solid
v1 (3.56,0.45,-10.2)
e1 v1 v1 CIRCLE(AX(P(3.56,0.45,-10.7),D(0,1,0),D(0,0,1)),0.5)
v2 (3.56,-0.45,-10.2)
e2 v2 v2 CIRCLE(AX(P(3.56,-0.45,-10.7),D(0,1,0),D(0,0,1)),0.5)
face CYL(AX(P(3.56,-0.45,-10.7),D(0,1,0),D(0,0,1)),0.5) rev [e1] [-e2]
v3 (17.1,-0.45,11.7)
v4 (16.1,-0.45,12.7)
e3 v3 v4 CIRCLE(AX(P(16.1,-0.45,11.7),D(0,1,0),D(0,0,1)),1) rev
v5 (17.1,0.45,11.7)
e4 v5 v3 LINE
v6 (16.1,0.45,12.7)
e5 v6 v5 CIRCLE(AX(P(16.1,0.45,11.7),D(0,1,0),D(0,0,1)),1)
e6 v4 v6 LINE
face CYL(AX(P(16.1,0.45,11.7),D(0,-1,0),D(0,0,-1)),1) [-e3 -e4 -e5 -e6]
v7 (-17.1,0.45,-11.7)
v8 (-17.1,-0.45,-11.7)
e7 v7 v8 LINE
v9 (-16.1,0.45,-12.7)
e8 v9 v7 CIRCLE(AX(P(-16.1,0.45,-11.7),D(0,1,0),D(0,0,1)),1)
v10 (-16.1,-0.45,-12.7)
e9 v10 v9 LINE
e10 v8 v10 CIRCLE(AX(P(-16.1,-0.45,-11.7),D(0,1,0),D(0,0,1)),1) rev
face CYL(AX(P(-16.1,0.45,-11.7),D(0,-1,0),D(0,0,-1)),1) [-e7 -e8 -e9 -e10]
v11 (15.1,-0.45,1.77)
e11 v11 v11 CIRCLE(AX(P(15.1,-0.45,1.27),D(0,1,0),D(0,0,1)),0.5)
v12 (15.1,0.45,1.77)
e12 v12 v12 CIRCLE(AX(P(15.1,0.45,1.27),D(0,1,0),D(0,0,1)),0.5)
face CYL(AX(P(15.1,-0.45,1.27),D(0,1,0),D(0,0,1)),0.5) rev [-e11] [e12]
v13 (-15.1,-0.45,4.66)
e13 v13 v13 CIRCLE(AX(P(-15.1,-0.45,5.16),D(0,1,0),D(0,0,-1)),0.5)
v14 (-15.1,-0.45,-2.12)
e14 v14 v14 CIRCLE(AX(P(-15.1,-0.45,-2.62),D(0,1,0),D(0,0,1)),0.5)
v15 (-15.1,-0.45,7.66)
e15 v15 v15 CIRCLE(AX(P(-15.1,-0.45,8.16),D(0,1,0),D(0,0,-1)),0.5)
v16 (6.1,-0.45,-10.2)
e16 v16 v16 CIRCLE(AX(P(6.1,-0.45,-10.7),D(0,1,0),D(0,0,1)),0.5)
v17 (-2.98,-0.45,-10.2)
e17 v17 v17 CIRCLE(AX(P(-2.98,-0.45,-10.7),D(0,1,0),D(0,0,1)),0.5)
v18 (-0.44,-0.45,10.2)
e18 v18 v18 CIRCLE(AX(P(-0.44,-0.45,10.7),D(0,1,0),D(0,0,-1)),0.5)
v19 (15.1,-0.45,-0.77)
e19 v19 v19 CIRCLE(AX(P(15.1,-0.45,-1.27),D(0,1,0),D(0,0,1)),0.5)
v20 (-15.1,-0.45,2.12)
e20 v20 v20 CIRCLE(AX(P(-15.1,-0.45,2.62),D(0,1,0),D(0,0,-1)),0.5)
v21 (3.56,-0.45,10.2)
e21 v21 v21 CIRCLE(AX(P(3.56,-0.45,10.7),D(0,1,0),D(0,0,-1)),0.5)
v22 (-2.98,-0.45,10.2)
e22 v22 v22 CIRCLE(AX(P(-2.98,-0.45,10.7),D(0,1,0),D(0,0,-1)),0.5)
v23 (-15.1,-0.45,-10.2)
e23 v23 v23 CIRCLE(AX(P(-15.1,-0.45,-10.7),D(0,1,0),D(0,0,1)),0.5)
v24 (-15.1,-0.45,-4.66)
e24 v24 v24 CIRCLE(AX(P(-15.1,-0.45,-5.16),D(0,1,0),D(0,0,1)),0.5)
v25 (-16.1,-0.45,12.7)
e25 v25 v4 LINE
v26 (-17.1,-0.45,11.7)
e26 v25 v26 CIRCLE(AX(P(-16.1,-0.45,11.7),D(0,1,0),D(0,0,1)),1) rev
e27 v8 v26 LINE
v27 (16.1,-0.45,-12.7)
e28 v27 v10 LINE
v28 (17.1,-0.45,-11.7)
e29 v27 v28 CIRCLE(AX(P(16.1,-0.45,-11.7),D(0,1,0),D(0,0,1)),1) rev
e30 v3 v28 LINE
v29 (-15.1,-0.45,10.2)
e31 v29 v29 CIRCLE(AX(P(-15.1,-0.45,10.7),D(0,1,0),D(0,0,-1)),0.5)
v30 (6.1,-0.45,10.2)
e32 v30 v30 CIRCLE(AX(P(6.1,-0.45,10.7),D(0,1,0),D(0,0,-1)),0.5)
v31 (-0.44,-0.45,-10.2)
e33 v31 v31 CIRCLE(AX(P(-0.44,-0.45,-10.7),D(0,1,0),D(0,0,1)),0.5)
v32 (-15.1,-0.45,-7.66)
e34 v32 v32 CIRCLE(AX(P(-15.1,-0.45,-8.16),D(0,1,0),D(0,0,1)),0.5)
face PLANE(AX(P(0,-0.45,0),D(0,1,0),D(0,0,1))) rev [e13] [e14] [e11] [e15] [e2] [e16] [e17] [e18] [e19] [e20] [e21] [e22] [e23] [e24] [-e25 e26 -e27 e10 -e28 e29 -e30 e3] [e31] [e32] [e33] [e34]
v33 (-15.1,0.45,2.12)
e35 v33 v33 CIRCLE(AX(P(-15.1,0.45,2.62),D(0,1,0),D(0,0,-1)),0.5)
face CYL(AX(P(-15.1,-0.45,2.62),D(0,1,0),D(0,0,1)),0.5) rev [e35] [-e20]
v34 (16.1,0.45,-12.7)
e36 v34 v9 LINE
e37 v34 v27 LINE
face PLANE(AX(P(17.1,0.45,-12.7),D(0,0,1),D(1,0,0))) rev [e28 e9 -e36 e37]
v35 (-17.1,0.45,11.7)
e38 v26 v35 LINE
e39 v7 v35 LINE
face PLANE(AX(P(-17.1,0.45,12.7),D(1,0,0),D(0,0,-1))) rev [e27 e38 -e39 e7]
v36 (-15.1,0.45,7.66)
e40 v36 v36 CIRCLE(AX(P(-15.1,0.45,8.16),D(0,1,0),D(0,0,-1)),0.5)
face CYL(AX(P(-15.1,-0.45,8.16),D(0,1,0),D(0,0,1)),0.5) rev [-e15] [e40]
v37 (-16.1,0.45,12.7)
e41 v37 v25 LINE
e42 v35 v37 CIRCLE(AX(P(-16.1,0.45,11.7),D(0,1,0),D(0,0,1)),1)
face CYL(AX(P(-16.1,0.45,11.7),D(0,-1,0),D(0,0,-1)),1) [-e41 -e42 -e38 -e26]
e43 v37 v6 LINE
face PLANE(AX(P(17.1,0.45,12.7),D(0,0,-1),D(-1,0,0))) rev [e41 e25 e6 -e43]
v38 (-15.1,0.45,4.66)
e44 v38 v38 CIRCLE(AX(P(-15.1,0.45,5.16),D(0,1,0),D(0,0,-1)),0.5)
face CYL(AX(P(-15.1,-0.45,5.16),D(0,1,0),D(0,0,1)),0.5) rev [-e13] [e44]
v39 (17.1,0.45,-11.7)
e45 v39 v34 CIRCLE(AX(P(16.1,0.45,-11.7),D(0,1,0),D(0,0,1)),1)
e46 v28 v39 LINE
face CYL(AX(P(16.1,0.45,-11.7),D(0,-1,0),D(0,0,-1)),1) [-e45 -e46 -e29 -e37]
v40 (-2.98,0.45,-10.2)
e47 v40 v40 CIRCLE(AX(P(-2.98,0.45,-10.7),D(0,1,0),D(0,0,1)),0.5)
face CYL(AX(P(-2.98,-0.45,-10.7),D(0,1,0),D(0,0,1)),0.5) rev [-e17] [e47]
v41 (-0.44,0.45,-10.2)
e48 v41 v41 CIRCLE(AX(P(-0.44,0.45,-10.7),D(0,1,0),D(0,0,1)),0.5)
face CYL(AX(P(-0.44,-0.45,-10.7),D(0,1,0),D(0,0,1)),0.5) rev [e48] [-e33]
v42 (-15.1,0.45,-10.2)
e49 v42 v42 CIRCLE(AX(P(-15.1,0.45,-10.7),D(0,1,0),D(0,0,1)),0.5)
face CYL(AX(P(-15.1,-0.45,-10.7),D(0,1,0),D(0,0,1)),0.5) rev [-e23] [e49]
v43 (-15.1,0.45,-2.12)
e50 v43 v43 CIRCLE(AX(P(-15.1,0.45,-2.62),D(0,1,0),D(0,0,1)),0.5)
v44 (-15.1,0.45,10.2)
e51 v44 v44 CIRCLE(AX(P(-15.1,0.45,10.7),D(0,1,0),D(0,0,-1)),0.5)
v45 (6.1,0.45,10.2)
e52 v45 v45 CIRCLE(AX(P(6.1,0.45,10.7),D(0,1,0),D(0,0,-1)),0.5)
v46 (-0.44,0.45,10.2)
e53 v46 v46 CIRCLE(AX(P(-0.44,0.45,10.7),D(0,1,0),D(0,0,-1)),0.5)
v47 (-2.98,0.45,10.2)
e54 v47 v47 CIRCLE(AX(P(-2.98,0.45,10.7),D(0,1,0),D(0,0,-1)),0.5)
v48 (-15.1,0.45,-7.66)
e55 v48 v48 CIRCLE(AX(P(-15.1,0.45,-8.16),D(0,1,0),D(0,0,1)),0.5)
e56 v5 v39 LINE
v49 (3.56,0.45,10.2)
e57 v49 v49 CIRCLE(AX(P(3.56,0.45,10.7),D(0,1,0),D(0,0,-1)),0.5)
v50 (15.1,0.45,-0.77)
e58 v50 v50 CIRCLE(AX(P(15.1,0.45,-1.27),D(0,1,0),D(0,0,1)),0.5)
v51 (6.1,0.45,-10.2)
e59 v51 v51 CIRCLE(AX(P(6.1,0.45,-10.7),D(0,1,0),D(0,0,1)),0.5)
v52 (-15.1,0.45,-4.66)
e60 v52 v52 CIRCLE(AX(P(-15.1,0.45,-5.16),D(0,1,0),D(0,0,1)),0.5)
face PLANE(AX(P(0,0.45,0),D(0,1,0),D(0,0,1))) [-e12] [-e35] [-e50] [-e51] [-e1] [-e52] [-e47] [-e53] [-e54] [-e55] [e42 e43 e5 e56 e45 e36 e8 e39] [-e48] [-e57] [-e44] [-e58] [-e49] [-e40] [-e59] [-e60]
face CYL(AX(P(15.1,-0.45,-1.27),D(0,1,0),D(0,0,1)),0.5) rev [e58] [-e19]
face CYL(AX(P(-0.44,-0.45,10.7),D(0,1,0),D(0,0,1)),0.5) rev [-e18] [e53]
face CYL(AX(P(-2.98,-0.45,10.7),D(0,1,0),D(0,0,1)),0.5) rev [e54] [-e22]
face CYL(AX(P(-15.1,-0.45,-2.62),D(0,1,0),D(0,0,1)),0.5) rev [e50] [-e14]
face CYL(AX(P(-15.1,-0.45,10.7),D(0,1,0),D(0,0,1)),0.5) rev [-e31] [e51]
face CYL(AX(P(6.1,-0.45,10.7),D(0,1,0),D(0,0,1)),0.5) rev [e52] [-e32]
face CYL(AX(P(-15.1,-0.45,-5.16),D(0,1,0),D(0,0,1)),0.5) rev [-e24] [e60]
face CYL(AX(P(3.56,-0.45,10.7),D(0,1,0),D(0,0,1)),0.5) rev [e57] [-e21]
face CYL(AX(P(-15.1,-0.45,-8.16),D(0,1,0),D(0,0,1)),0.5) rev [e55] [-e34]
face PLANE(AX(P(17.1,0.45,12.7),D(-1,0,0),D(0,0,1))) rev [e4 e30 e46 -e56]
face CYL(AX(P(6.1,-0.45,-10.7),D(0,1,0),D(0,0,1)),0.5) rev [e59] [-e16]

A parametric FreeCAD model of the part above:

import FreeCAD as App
import Part
import Sketcher
from FreeCAD import Vector
Q = App.Units.Quantity


def edges_at(feature, points):
    """Names of the edges that pass closest to the given points."""
    edges = feature.Shape.Edges
    near = lambda p: min(range(len(edges)), key=lambda i: edges[i].distToShape(Part.Vertex(*p))[0])
    return sorted({f"Edge{near(p) + 1}" for p in points})


def add_polygon(sketch, points):
    """Adds a closed chain of lines whose ends are joined by coincident constraints."""
    first, n = sketch.GeometryCount, len(points)
    for a, b in zip(points, points[1:] + points[:1]):
        sketch.addGeometry(Part.LineSegment(App.Vector(*a, 0), App.Vector(*b, 0)), False)
    for i in range(n):
        sketch.addConstraint(Sketcher.Constraint("Coincident", first + i, 2, first + (i + 1) % n, 1))

doc = App.newDocument("Part")
body = doc.addObject("PartDesign::Body", "Body")

sketch1 = doc.addObject("Sketcher::SketchObject", "Sketch")
body.addObject(sketch1)
sketch1.AttachmentSupport = (doc.XZ_Plane, [""])
sketch1.MapMode = "FlatFace"
add_polygon(sketch1, [(-17, -13), (-17, 13), (17, 13), (17, -13)])
sketch1.addConstraint(Sketcher.Constraint("Vertical", 0))
sketch1.addConstraint(Sketcher.Constraint("Horizontal", 1))
sketch1.addConstraint(Sketcher.Constraint("Vertical", 2))
sketch1.addConstraint(Sketcher.Constraint("Horizontal", 3))
sketch1.addConstraint(Sketcher.Constraint("Symmetric", 0, 2, 2, 2, -1, 1))
sketch1.addConstraint(Sketcher.Constraint("DistanceX", 1, 1, 1, 2, Q("34.2 mm")))
sketch1.addConstraint(Sketcher.Constraint("DistanceY", 0, 1, 0, 2, Q("25.4 mm")))
pad1 = doc.addObject("PartDesign::Pad", "Pad")
body.addObject(pad1)
pad1.Profile = sketch1
pad1.Length = 0.9
pad1.Midplane = True

sketch2 = doc.addObject("Sketcher::SketchObject", "Sketch001")
body.addObject(sketch2)
sketch2.AttachmentSupport = (doc.XZ_Plane, [""])
sketch2.MapMode = "FlatFace"
sketch2.AttachmentOffset = App.Placement(Vector(0, 0, -0.45), App.Rotation())
sketch2.addGeometry(Part.Circle(Vector(15.1, -1.3, 0), Vector(0, 0, 1), 0.5), False)
sketch2.addGeometry(Part.Circle(Vector(15.1, 1.3, 0), Vector(0, 0, 1), 0.5), False)
sketch2.addGeometry(Part.Circle(Vector(-3, -10.7, 0), Vector(0, 0, 1), 0.5), False)
sketch2.addGeometry(Part.Circle(Vector(-0.4, -10.7, 0), Vector(0, 0, 1), 0.5), False)
sketch2.addGeometry(Part.Circle(Vector(3.6, -10.7, 0), Vector(0, 0, 1), 0.5), False)
sketch2.addGeometry(Part.Circle(Vector(6.1, -10.7, 0), Vector(0, 0, 1), 0.5), False)
sketch2.addGeometry(Part.Circle(Vector(-15.1, -2.6, 0), Vector(0, 0, 1), 0.5), False)
sketch2.addGeometry(Part.Circle(Vector(-15.1, -5.2, 0), Vector(0, 0, 1), 0.5), False)
sketch2.addGeometry(Part.Circle(Vector(-15.1, -8.2, 0), Vector(0, 0, 1), 0.5), False)
sketch2.addGeometry(Part.Circle(Vector(-15.1, -10.7, 0), Vector(0, 0, 1), 0.5), False)
sketch2.addGeometry(Part.Circle(Vector(6.1, 10.7, 0), Vector(0, 0, 1), 0.5), False)
sketch2.addGeometry(Part.Circle(Vector(3.6, 10.7, 0), Vector(0, 0, 1), 0.5), False)
sketch2.addGeometry(Part.Circle(Vector(-0.4, 10.7, 0), Vector(0, 0, 1), 0.5), False)
sketch2.addGeometry(Part.Circle(Vector(-3, 10.7, 0), Vector(0, 0, 1), 0.5), False)
sketch2.addGeometry(Part.Circle(Vector(-15.1, 10.7, 0), Vector(0, 0, 1), 0.5), False)
sketch2.addGeometry(Part.Circle(Vector(-15.1, 8.2, 0), Vector(0, 0, 1), 0.5), False)
sketch2.addGeometry(Part.Circle(Vector(-15.1, 5.2, 0), Vector(0, 0, 1), 0.5), False)
sketch2.addGeometry(Part.Circle(Vector(-15.1, 2.6, 0), Vector(0, 0, 1), 0.5), False)
sketch2.addConstraint(Sketcher.Constraint("Equal", 0, 1))
sketch2.addConstraint(Sketcher.Constraint("Equal", 1, 2))
sketch2.addConstraint(Sketcher.Constraint("Equal", 2, 3))
sketch2.addConstraint(Sketcher.Constraint("Equal", 3, 4))
sketch2.addConstraint(Sketcher.Constraint("Equal", 4, 5))
sketch2.addConstraint(Sketcher.Constraint("Equal", 5, 6))
sketch2.addConstraint(Sketcher.Constraint("Equal", 6, 7))
sketch2.addConstraint(Sketcher.Constraint("Equal", 7, 8))
sketch2.addConstraint(Sketcher.Constraint("Equal", 8, 9))
sketch2.addConstraint(Sketcher.Constraint("Equal", 9, 10))
sketch2.addConstraint(Sketcher.Constraint("Equal", 10, 11))
sketch2.addConstraint(Sketcher.Constraint("Equal", 11, 12))
sketch2.addConstraint(Sketcher.Constraint("Equal", 12, 13))
sketch2.addConstraint(Sketcher.Constraint("Equal", 13, 14))
sketch2.addConstraint(Sketcher.Constraint("Equal", 14, 15))
sketch2.addConstraint(Sketcher.Constraint("Equal", 15, 16))
sketch2.addConstraint(Sketcher.Constraint("Equal", 16, 17))
sketch2.addConstraint(Sketcher.Constraint("Symmetric", 0, 3, 1, 3, -1))
sketch2.addConstraint(Sketcher.Constraint("Symmetric", 5, 3, 10, 3, -1))
sketch2.addConstraint(Sketcher.Constraint("Symmetric", 4, 3, 11, 3, -1))
sketch2.addConstraint(Sketcher.Constraint("Symmetric", 3, 3, 12, 3, -1))
sketch2.addConstraint(Sketcher.Constraint("Symmetric", 2, 3, 13, 3, -1))
sketch2.addConstraint(Sketcher.Constraint("Symmetric", 9, 3, 14, 3, -1))
sketch2.addConstraint(Sketcher.Constraint("Symmetric", 8, 3, 15, 3, -1))
sketch2.addConstraint(Sketcher.Constraint("Symmetric", 7, 3, 16, 3, -1))
sketch2.addConstraint(Sketcher.Constraint("Symmetric", 6, 3, 17, 3, -1))
sketch2.addConstraint(Sketcher.Constraint("Horizontal", 2, 3, 3, 3))
sketch2.addConstraint(Sketcher.Constraint("Horizontal", 3, 3, 4, 3))
sketch2.addConstraint(Sketcher.Constraint("Horizontal", 4, 3, 5, 3))
sketch2.addConstraint(Sketcher.Constraint("Horizontal", 5, 3, 9, 3))
sketch2.addConstraint(Sketcher.Constraint("Vertical", 6, 3, 7, 3))
sketch2.addConstraint(Sketcher.Constraint("Vertical", 7, 3, 8, 3))
sketch2.addConstraint(Sketcher.Constraint("Vertical", 8, 3, 9, 3))
sketch2.addConstraint(Sketcher.Constraint("Diameter", 0, Q("1 mm")))
sketch2.addConstraint(Sketcher.Constraint("DistanceX", 3, 3, 4, 3, Q("4 mm")))
sketch2.addConstraint(Sketcher.Constraint("DistanceX", 5, 3, 0, 3, Q("9 mm")))
sketch2.addConstraint(Sketcher.Constraint("DistanceY", 8, 3, 7, 3, Q("3 mm")))
sketch2.addConstraint(Sketcher.Constraint("DistanceX", -1, 1, 0, 3, Q("15.1 mm")))
sketch2.addConstraint(Sketcher.Constraint("DistanceY", 2, 3, -1, 1, Q("10.7 mm")))
sketch2.addConstraint(Sketcher.Constraint("DistanceX", 6, 3, -1, 1, Q("15.1 mm")))
sketch2.addConstraint(Sketcher.Constraint("DistanceY", 0, 3, -1, 1, Q("1.27 mm")))
sketch2.addConstraint(Sketcher.Constraint("DistanceX", 2, 3, -1, 1, Q("2.98 mm")))
sketch2.addConstraint(Sketcher.Constraint("DistanceX", 3, 3, -1, 1, Q("0.44 mm")))
sketch2.addConstraint(Sketcher.Constraint("DistanceY", 6, 3, -1, 1, Q("2.62 mm")))
sketch2.addConstraint(Sketcher.Constraint("DistanceY", 7, 3, -1, 1, Q("5.16 mm")))
pocket1 = doc.addObject("PartDesign::Pocket", "Pocket")
body.addObject(pocket1)
pocket1.Profile = sketch2
pocket1.Type = "ThroughAll"
pocket1.Reversed = True
doc.recompute()

fillet = doc.addObject("PartDesign::Fillet", "Fillet")
body.addObject(fillet)
fillet.Base = (pocket1, edges_at(pocket1, [
    (-17.1, 0, -12.7),
    (17.1, 0, -12.7),
    (17.1, 0, 12.7),
    (-17.1, 0, 12.7),
]))
fillet.Radius = 1

doc.recompute()
